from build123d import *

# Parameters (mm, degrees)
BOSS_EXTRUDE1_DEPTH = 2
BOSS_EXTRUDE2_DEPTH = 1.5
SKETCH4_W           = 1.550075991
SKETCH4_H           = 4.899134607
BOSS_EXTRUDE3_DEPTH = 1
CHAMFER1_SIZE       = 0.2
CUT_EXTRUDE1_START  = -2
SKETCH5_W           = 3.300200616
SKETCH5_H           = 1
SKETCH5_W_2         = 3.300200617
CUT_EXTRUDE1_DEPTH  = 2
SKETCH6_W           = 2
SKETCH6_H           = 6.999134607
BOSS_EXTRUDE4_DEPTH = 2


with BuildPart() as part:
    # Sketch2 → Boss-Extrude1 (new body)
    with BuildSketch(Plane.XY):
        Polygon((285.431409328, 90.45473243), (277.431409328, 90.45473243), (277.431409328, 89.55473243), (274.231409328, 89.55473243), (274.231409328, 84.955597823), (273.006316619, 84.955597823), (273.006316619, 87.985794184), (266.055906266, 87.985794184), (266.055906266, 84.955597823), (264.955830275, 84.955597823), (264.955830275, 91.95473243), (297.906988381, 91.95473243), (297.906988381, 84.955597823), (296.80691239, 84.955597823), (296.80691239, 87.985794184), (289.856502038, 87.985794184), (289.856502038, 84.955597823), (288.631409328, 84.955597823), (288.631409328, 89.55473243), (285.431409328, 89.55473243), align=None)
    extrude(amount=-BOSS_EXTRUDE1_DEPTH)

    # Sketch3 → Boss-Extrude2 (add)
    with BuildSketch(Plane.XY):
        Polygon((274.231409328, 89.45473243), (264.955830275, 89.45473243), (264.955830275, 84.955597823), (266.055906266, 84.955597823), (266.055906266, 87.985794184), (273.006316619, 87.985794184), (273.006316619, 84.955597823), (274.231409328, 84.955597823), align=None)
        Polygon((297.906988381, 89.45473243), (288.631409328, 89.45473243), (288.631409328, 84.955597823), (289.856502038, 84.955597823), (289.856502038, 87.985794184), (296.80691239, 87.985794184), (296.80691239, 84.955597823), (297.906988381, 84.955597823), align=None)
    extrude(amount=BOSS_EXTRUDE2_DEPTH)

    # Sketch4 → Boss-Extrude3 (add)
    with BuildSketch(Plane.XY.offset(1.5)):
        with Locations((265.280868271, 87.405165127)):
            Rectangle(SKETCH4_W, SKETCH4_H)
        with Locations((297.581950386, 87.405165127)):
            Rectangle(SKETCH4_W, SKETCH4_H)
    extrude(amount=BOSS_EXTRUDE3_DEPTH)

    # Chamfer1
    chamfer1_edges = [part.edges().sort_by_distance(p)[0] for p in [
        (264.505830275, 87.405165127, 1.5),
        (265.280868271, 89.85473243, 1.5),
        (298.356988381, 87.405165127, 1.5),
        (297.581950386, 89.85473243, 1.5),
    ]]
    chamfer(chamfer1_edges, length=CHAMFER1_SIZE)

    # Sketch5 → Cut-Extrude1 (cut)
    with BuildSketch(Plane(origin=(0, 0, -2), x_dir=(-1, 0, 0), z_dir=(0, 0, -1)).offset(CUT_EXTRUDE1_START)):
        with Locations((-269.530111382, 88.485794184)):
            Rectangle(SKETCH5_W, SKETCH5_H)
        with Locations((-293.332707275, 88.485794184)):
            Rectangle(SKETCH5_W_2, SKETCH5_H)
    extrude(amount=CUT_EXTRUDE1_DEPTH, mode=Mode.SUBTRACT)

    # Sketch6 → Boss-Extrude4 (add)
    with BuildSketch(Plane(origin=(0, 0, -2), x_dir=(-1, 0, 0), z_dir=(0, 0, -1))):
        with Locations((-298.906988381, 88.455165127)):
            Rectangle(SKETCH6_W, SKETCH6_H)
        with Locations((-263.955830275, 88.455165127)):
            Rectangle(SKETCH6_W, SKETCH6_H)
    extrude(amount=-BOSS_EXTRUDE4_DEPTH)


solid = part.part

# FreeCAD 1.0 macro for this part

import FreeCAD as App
import Part
import Sketcher

V = App.Vector
Q = App.Units.Quantity


def edges_at(feature, points):
    """Names of the edges that pass closest to the given points."""
    edges = feature.Shape.Edges
    near = lambda p: min(range(len(edges)), key=lambda i: edges[i].distToShape(Part.Vertex(*p))[0])
    return sorted({f"Edge{near(p) + 1}" for p in points})

doc = App.newDocument("Part")
body = doc.addObject("PartDesign::Body", "Body")

# Sketch on XY plane
sketch1 = body.newObject("Sketcher::SketchObject", "Sketch")
sketch1.AttachmentSupport = (doc.getObject("XY_Plane"), [""])
sketch1.MapMode = "FlatFace"
sketch1.addGeometry([
    Part.LineSegment(V(277.4, 90.5, 0), V(285.4, 90.5, 0)),  # 0
    Part.LineSegment(V(285.4, 90.5, 0), V(285.4, 89.6, 0)),  # 1
    Part.LineSegment(V(285.4, 89.6, 0), V(288.6, 89.6, 0)),  # 2
    Part.LineSegment(V(288.6, 89.6, 0), V(288.6, 85, 0)),  # 3
    Part.LineSegment(V(288.6, 85, 0), V(289.9, 85, 0)),  # 4
    Part.LineSegment(V(289.9, 85, 0), V(289.9, 88, 0)),  # 5
    Part.LineSegment(V(289.9, 88, 0), V(296.8, 88, 0)),  # 6
    Part.LineSegment(V(296.8, 88, 0), V(296.8, 85, 0)),  # 7
    Part.LineSegment(V(296.8, 85, 0), V(297.9, 85, 0)),  # 8
    Part.LineSegment(V(297.9, 85, 0), V(297.9, 92, 0)),  # 9
    Part.LineSegment(V(297.9, 92, 0), V(265, 92, 0)),  # 10
    Part.LineSegment(V(265, 92, 0), V(265, 85, 0)),  # 11
    Part.LineSegment(V(265, 85, 0), V(266.1, 85, 0)),  # 12
    Part.LineSegment(V(266.1, 85, 0), V(266.1, 88, 0)),  # 13
    Part.LineSegment(V(266.1, 88, 0), V(273, 88, 0)),  # 14
    Part.LineSegment(V(273, 88, 0), V(273, 85, 0)),  # 15
    Part.LineSegment(V(273, 85, 0), V(274.2, 85, 0)),  # 16
    Part.LineSegment(V(274.2, 85, 0), V(274.2, 89.6, 0)),  # 17
    Part.LineSegment(V(274.2, 89.6, 0), V(277.4, 89.6, 0)),  # 18
    Part.LineSegment(V(277.4, 89.6, 0), V(277.4, 90.5, 0)),  # 19
], False)
sketch1.addConstraint([
    Sketcher.Constraint("Coincident", 0, 2, 1, 1),
    Sketcher.Constraint("Coincident", 1, 2, 2, 1),
    Sketcher.Constraint("Coincident", 2, 2, 3, 1),
    Sketcher.Constraint("Coincident", 3, 2, 4, 1),
    Sketcher.Constraint("Coincident", 4, 2, 5, 1),
    Sketcher.Constraint("Coincident", 5, 2, 6, 1),
    Sketcher.Constraint("Coincident", 6, 2, 7, 1),
    Sketcher.Constraint("Coincident", 7, 2, 8, 1),
    Sketcher.Constraint("Coincident", 8, 2, 9, 1),
    Sketcher.Constraint("Coincident", 9, 2, 10, 1),
    Sketcher.Constraint("Coincident", 10, 2, 11, 1),
    Sketcher.Constraint("Coincident", 11, 2, 12, 1),
    Sketcher.Constraint("Coincident", 12, 2, 13, 1),
    Sketcher.Constraint("Coincident", 13, 2, 14, 1),
    Sketcher.Constraint("Coincident", 14, 2, 15, 1),
    Sketcher.Constraint("Coincident", 15, 2, 16, 1),
    Sketcher.Constraint("Coincident", 16, 2, 17, 1),
    Sketcher.Constraint("Coincident", 17, 2, 18, 1),
    Sketcher.Constraint("Coincident", 18, 2, 19, 1),
    Sketcher.Constraint("Coincident", 19, 2, 0, 1),
    Sketcher.Constraint("Horizontal", 0),
    Sketcher.Constraint("Vertical", 1),
    Sketcher.Constraint("Horizontal", 2),
    Sketcher.Constraint("Vertical", 3),
    Sketcher.Constraint("Horizontal", 4),
    Sketcher.Constraint("Vertical", 5),
    Sketcher.Constraint("Horizontal", 6),
    Sketcher.Constraint("Vertical", 7),
    Sketcher.Constraint("Horizontal", 8),
    Sketcher.Constraint("Vertical", 9),
    Sketcher.Constraint("Horizontal", 10),
    Sketcher.Constraint("Vertical", 11),
    Sketcher.Constraint("Horizontal", 12),
    Sketcher.Constraint("Vertical", 13),
    Sketcher.Constraint("Horizontal", 14),
    Sketcher.Constraint("Vertical", 15),
    Sketcher.Constraint("Horizontal", 16),
    Sketcher.Constraint("Vertical", 17),
    Sketcher.Constraint("Horizontal", 18),
    Sketcher.Constraint("Vertical", 19),
    Sketcher.Constraint("Horizontal", 4, 2, 7, 2),
    Sketcher.Constraint("Horizontal", 8, 2, 11, 2),
    Sketcher.Constraint("Horizontal", 6, 2, 13, 2),
    Sketcher.Constraint("Horizontal", 12, 2, 15, 2),
    Sketcher.Constraint("Horizontal", 2, 2, 17, 2),
    Sketcher.Constraint("Equal", 8, 12),
    Sketcher.Constraint("Equal", 6, 14),
    Sketcher.Constraint("Equal", 4, 16),
    Sketcher.Constraint("Equal", 2, 18),
    Sketcher.Constraint("DistanceX", 0, 1, 0, 2, Q("8 mm")),
    Sketcher.Constraint("DistanceX", 2, 1, 2, 2, Q("3.2 mm")),
    Sketcher.Constraint("DistanceY", 1, 2, 1, 1, Q("0.9 mm")),
    Sketcher.Constraint("DistanceY", 2, 2, 9, 2, Q("2.4 mm")),
    Sketcher.Constraint("DistanceX", 6, 1, 6, 2, Q("6.95041 mm")),
    Sketcher.Constraint("DistanceX", 10, 2, 10, 1, Q("32.951158 mm")),
    Sketcher.Constraint("DistanceX", 4, 1, 4, 2, Q("1.225093 mm")),
    Sketcher.Constraint("DistanceY", 3, 2, 3, 1, Q("4.599135 mm")),
    Sketcher.Constraint("DistanceY", 5, 1, 5, 2, Q("3.030196 mm")),
    Sketcher.Constraint("DistanceX", -1, 1, 0, 2, Q("285.431409 mm")),
    Sketcher.Constraint("DistanceY", -1, 1, 0, 2, Q("90.454732 mm")),
])
pad1 = body.newObject("PartDesign::Pad", "Pad")
pad1.Profile = sketch1
pad1.Length = 2
pad1.Reversed = True

# Sketch on XY plane
sketch2 = body.newObject("Sketcher::SketchObject", "Sketch001")
sketch2.AttachmentSupport = (doc.getObject("XY_Plane"), [""])
sketch2.MapMode = "FlatFace"
sketch2.addGeometry([
    Part.LineSegment(V(274.2, 89.5, 0), V(265, 89.5, 0)),  # 0
    Part.LineSegment(V(265, 89.5, 0), V(265, 85, 0)),  # 1
    Part.LineSegment(V(265, 85, 0), V(266.1, 85, 0)),  # 2
    Part.LineSegment(V(266.1, 85, 0), V(266.1, 88, 0)),  # 3
    Part.LineSegment(V(266.1, 88, 0), V(273, 88, 0)),  # 4
    Part.LineSegment(V(273, 88, 0), V(273, 85, 0)),  # 5
    Part.LineSegment(V(273, 85, 0), V(274.2, 85, 0)),  # 6
    Part.LineSegment(V(274.2, 85, 0), V(274.2, 89.5, 0)),  # 7
    Part.LineSegment(V(297.9, 89.5, 0), V(288.6, 89.5, 0)),  # 8
    Part.LineSegment(V(288.6, 89.5, 0), V(288.6, 85, 0)),  # 9
    Part.LineSegment(V(288.6, 85, 0), V(289.9, 85, 0)),  # 10
    Part.LineSegment(V(289.9, 85, 0), V(289.9, 88, 0)),  # 11
    Part.LineSegment(V(289.9, 88, 0), V(296.8, 88, 0)),  # 12
    Part.LineSegment(V(296.8, 88, 0), V(296.8, 85, 0)),  # 13
    Part.LineSegment(V(296.8, 85, 0), V(297.9, 85, 0)),  # 14
    Part.LineSegment(V(297.9, 85, 0), V(297.9, 89.5, 0)),  # 15
], False)
sketch2.addConstraint([
    Sketcher.Constraint("Coincident", 0, 2, 1, 1),
    Sketcher.Constraint("Coincident", 1, 2, 2, 1),
    Sketcher.Constraint("Coincident", 2, 2, 3, 1),
    Sketcher.Constraint("Coincident", 3, 2, 4, 1),
    Sketcher.Constraint("Coincident", 4, 2, 5, 1),
    Sketcher.Constraint("Coincident", 5, 2, 6, 1),
    Sketcher.Constraint("Coincident", 6, 2, 7, 1),
    Sketcher.Constraint("Coincident", 7, 2, 0, 1),
    Sketcher.Constraint("Coincident", 8, 2, 9, 1),
    Sketcher.Constraint("Coincident", 9, 2, 10, 1),
    Sketcher.Constraint("Coincident", 10, 2, 11, 1),
    Sketcher.Constraint("Coincident", 11, 2, 12, 1),
    Sketcher.Constraint("Coincident", 12, 2, 13, 1),
    Sketcher.Constraint("Coincident", 13, 2, 14, 1),
    Sketcher.Constraint("Coincident", 14, 2, 15, 1),
    Sketcher.Constraint("Coincident", 15, 2, 8, 1),
    Sketcher.Constraint("Horizontal", 0),
    Sketcher.Constraint("Vertical", 1),
    Sketcher.Constraint("Horizontal", 2),
    Sketcher.Constraint("Vertical", 3),
    Sketcher.Constraint("Horizontal", 4),
    Sketcher.Constraint("Vertical", 5),
    Sketcher.Constraint("Horizontal", 6),
    Sketcher.Constraint("Vertical", 7),
    Sketcher.Constraint("Horizontal", 8),
    Sketcher.Constraint("Vertical", 9),
    Sketcher.Constraint("Horizontal", 10),
    Sketcher.Constraint("Vertical", 11),
    Sketcher.Constraint("Horizontal", 12),
    Sketcher.Constraint("Vertical", 13),
    Sketcher.Constraint("Horizontal", 14),
    Sketcher.Constraint("Vertical", 15),
    Sketcher.Constraint("Horizontal", 2, 2, 5, 2),
    Sketcher.Constraint("Horizontal", 7, 2, 8, 2),
    Sketcher.Constraint("Horizontal", 6, 2, 9, 2),
    Sketcher.Constraint("Horizontal", 4, 2, 11, 2),
    Sketcher.Constraint("Horizontal", 10, 2, 13, 2),
    Sketcher.Constraint("Equal", 0, 8),
    Sketcher.Constraint("Equal", 6, 10),
    Sketcher.Constraint("Equal", 4, 12),
    Sketcher.Constraint("DistanceX", 7, 2, 8, 2, Q("14.4 mm")),
    Sketcher.Constraint("DistanceX", 0, 2, 0, 1, Q("9.275579 mm")),
    Sketcher.Constraint("DistanceX", 4, 1, 4, 2, Q("6.95041 mm")),
    Sketcher.Constraint("DistanceX", 2, 1, 2, 2, Q("1.100076 mm")),
    Sketcher.Constraint("DistanceY", 1, 2, 1, 1, Q("4.499135 mm")),
    Sketcher.Constraint("DistanceY", 3, 1, 3, 2, Q("3.030196 mm")),
    Sketcher.Constraint("DistanceX", -1, 1, 0, 2, Q("264.95583 mm")),
    Sketcher.Constraint("DistanceY", -1, 1, 0, 2, Q("89.454732 mm")),
])
pad2 = body.newObject("PartDesign::Pad", "Pad001")
pad2.Profile = sketch2
pad2.Length = 1.5

# Sketch on XY plane
sketch3 = body.newObject("Sketcher::SketchObject", "Sketch002")
sketch3.AttachmentSupport = (doc.getObject("XY_Plane"), [""])
sketch3.MapMode = "FlatFace"
sketch3.AttachmentOffset = App.Placement(V(0, 0, 1.5), App.Rotation())
sketch3.addGeometry([
    Part.LineSegment(V(264.5, 89.9, 0), V(264.5, 85, 0)),  # 0
    Part.LineSegment(V(264.5, 85, 0), V(266.1, 85, 0)),  # 1
    Part.LineSegment(V(266.1, 85, 0), V(266.1, 89.9, 0)),  # 2
    Part.LineSegment(V(266.1, 89.9, 0), V(264.5, 89.9, 0)),  # 3
    Part.LineSegment(V(296.8, 89.9, 0), V(296.8, 85, 0)),  # 4
    Part.LineSegment(V(296.8, 85, 0), V(298.4, 85, 0)),  # 5
    Part.LineSegment(V(298.4, 85, 0), V(298.4, 89.9, 0)),  # 6
    Part.LineSegment(V(298.4, 89.9, 0), V(296.8, 89.9, 0)),  # 7
], False)
sketch3.addConstraint([
    Sketcher.Constraint("Coincident", 0, 2, 1, 1),
    Sketcher.Constraint("Coincident", 1, 2, 2, 1),
    Sketcher.Constraint("Coincident", 2, 2, 3, 1),
    Sketcher.Constraint("Coincident", 3, 2, 0, 1),
    Sketcher.Constraint("Coincident", 4, 2, 5, 1),
    Sketcher.Constraint("Coincident", 5, 2, 6, 1),
    Sketcher.Constraint("Coincident", 6, 2, 7, 1),
    Sketcher.Constraint("Coincident", 7, 2, 4, 1),
    Sketcher.Constraint("Vertical", 0),
    Sketcher.Constraint("Horizontal", 1),
    Sketcher.Constraint("Vertical", 2),
    Sketcher.Constraint("Horizontal", 3),
    Sketcher.Constraint("Vertical", 4),
    Sketcher.Constraint("Horizontal", 5),
    Sketcher.Constraint("Vertical", 6),
    Sketcher.Constraint("Horizontal", 7),
    Sketcher.Constraint("Horizontal", 1, 2, 4, 2),
    Sketcher.Constraint("Horizontal", 3, 2, 6, 2),
    Sketcher.Constraint("Equal", 3, 5),
    Sketcher.Constraint("DistanceX", 1, 1, 1, 2, Q("1.550076 mm")),
    Sketcher.Constraint("DistanceY", 0, 2, 0, 1, Q("4.899135 mm")),
    Sketcher.Constraint("DistanceX", -1, 1, 0, 2, Q("264.50583 mm")),
    Sketcher.Constraint("DistanceX", -1, 1, 5, 2, Q("298.356988 mm")),
    Sketcher.Constraint("DistanceY", -1, 1, 0, 2, Q("84.955598 mm")),
])
pad3 = body.newObject("PartDesign::Pad", "Pad002")
pad3.Profile = sketch3
pad3.Length = 1
doc.recompute()

chamfer = body.newObject("PartDesign::Chamfer", "Chamfer")
chamfer.Base = (pad3, edges_at(pad3, [
    (264.506, 87.405, 1.5),
    (265.281, 89.855, 1.5),
    (298.357, 87.405, 1.5),
    (297.582, 89.855, 1.5),
]))
chamfer.Size = 0.2

# Sketch on XY plane
sketch4 = body.newObject("Sketcher::SketchObject", "Sketch003")
sketch4.AttachmentSupport = (doc.getObject("XY_Plane"), [""])
sketch4.MapMode = "FlatFace"
sketch4.addGeometry([
    Part.LineSegment(V(271.2, 89, 0), V(271.2, 88, 0)),  # 0
    Part.LineSegment(V(271.2, 88, 0), V(267.9, 88, 0)),  # 1
    Part.LineSegment(V(267.9, 88, 0), V(267.9, 89, 0)),  # 2
    Part.LineSegment(V(267.9, 89, 0), V(271.2, 89, 0)),  # 3
    Part.LineSegment(V(295, 89, 0), V(295, 88, 0)),  # 4
    Part.LineSegment(V(295, 88, 0), V(291.7, 88, 0)),  # 5
    Part.LineSegment(V(291.7, 88, 0), V(291.7, 89, 0)),  # 6
    Part.LineSegment(V(291.7, 89, 0), V(295, 89, 0)),  # 7
], False)
sketch4.addConstraint([
    Sketcher.Constraint("Coincident", 0, 2, 1, 1),
    Sketcher.Constraint("Coincident", 1, 2, 2, 1),
    Sketcher.Constraint("Coincident", 2, 2, 3, 1),
    Sketcher.Constraint("Coincident", 3, 2, 0, 1),
    Sketcher.Constraint("Coincident", 4, 2, 5, 1),
    Sketcher.Constraint("Coincident", 5, 2, 6, 1),
    Sketcher.Constraint("Coincident", 6, 2, 7, 1),
    Sketcher.Constraint("Coincident", 7, 2, 4, 1),
    Sketcher.Constraint("Vertical", 0),
    Sketcher.Constraint("Horizontal", 1),
    Sketcher.Constraint("Vertical", 2),
    Sketcher.Constraint("Horizontal", 3),
    Sketcher.Constraint("Vertical", 4),
    Sketcher.Constraint("Horizontal", 5),
    Sketcher.Constraint("Vertical", 6),
    Sketcher.Constraint("Horizontal", 7),
    Sketcher.Constraint("Horizontal", 1, 2, 4, 2),
    Sketcher.Constraint("Horizontal", 3, 2, 6, 2),
    Sketcher.Constraint("Equal", 3, 5),
    Sketcher.Constraint("DistanceY", 0, 2, 0, 1, Q("1 mm")),
    Sketcher.Constraint("DistanceX", 1, 2, 1, 1, Q("3.300201 mm")),
    Sketcher.Constraint("DistanceX", -1, 1, 0, 2, Q("271.180212 mm")),
    Sketcher.Constraint("DistanceY", -1, 1, 0, 2, Q("87.985794 mm")),
    Sketcher.Constraint("DistanceX", -1, 1, 4, 2, Q("294.982808 mm")),
])
pocket1 = body.newObject("PartDesign::Pocket", "Pocket")
pocket1.Profile = sketch4
pocket1.Length = 2

# Sketch on XY plane
sketch5 = body.newObject("Sketcher::SketchObject", "Sketch004")
sketch5.AttachmentSupport = (doc.getObject("XY_Plane"), [""])
sketch5.MapMode = "FlatFace"
sketch5.AttachmentOffset = App.Placement(V(0, 0, -2), App.Rotation())
sketch5.addGeometry([
    Part.LineSegment(V(299.9, 92, 0), V(299.9, 85, 0)),  # 0
    Part.LineSegment(V(299.9, 85, 0), V(297.9, 85, 0)),  # 1
    Part.LineSegment(V(297.9, 85, 0), V(297.9, 92, 0)),  # 2
    Part.LineSegment(V(297.9, 92, 0), V(299.9, 92, 0)),  # 3
    Part.LineSegment(V(265, 92, 0), V(265, 85, 0)),  # 4
    Part.LineSegment(V(265, 85, 0), V(263, 85, 0)),  # 5
    Part.LineSegment(V(263, 85, 0), V(263, 92, 0)),  # 6
    Part.LineSegment(V(263, 92, 0), V(265, 92, 0)),  # 7
], False)
sketch5.addConstraint([
    Sketcher.Constraint("Coincident", 0, 2, 1, 1),
    Sketcher.Constraint("Coincident", 1, 2, 2, 1),
    Sketcher.Constraint("Coincident", 2, 2, 3, 1),
    Sketcher.Constraint("Coincident", 3, 2, 0, 1),
    Sketcher.Constraint("Coincident", 4, 2, 5, 1),
    Sketcher.Constraint("Coincident", 5, 2, 6, 1),
    Sketcher.Constraint("Coincident", 6, 2, 7, 1),
    Sketcher.Constraint("Coincident", 7, 2, 4, 1),
    Sketcher.Constraint("Vertical", 0),
    Sketcher.Constraint("Horizontal", 1),
    Sketcher.Constraint("Vertical", 2),
    Sketcher.Constraint("Horizontal", 3),
    Sketcher.Constraint("Vertical", 4),
    Sketcher.Constraint("Horizontal", 5),
    Sketcher.Constraint("Vertical", 6),
    Sketcher.Constraint("Horizontal", 7),
    Sketcher.Constraint("Horizontal", 1, 2, 4, 2),
    Sketcher.Constraint("Horizontal", 3, 2, 6, 2),
    Sketcher.Constraint("Equal", 3, 5),
    Sketcher.Constraint("DistanceX", 1, 2, 1, 1, Q("2 mm")),
    Sketcher.Constraint("DistanceY", 0, 2, 0, 1, Q("6.999135 mm")),
    Sketcher.Constraint("DistanceX", -1, 1, 0, 2, Q("299.906988 mm")),
    Sketcher.Constraint("DistanceX", -1, 1, 4, 2, Q("264.95583 mm")),
    Sketcher.Constraint("DistanceY", -1, 1, 0, 2, Q("84.955598 mm")),
])
pad4 = body.newObject("PartDesign::Pad", "Pad003")
pad4.Profile = sketch5
pad4.Length = 2

doc.recompute()
